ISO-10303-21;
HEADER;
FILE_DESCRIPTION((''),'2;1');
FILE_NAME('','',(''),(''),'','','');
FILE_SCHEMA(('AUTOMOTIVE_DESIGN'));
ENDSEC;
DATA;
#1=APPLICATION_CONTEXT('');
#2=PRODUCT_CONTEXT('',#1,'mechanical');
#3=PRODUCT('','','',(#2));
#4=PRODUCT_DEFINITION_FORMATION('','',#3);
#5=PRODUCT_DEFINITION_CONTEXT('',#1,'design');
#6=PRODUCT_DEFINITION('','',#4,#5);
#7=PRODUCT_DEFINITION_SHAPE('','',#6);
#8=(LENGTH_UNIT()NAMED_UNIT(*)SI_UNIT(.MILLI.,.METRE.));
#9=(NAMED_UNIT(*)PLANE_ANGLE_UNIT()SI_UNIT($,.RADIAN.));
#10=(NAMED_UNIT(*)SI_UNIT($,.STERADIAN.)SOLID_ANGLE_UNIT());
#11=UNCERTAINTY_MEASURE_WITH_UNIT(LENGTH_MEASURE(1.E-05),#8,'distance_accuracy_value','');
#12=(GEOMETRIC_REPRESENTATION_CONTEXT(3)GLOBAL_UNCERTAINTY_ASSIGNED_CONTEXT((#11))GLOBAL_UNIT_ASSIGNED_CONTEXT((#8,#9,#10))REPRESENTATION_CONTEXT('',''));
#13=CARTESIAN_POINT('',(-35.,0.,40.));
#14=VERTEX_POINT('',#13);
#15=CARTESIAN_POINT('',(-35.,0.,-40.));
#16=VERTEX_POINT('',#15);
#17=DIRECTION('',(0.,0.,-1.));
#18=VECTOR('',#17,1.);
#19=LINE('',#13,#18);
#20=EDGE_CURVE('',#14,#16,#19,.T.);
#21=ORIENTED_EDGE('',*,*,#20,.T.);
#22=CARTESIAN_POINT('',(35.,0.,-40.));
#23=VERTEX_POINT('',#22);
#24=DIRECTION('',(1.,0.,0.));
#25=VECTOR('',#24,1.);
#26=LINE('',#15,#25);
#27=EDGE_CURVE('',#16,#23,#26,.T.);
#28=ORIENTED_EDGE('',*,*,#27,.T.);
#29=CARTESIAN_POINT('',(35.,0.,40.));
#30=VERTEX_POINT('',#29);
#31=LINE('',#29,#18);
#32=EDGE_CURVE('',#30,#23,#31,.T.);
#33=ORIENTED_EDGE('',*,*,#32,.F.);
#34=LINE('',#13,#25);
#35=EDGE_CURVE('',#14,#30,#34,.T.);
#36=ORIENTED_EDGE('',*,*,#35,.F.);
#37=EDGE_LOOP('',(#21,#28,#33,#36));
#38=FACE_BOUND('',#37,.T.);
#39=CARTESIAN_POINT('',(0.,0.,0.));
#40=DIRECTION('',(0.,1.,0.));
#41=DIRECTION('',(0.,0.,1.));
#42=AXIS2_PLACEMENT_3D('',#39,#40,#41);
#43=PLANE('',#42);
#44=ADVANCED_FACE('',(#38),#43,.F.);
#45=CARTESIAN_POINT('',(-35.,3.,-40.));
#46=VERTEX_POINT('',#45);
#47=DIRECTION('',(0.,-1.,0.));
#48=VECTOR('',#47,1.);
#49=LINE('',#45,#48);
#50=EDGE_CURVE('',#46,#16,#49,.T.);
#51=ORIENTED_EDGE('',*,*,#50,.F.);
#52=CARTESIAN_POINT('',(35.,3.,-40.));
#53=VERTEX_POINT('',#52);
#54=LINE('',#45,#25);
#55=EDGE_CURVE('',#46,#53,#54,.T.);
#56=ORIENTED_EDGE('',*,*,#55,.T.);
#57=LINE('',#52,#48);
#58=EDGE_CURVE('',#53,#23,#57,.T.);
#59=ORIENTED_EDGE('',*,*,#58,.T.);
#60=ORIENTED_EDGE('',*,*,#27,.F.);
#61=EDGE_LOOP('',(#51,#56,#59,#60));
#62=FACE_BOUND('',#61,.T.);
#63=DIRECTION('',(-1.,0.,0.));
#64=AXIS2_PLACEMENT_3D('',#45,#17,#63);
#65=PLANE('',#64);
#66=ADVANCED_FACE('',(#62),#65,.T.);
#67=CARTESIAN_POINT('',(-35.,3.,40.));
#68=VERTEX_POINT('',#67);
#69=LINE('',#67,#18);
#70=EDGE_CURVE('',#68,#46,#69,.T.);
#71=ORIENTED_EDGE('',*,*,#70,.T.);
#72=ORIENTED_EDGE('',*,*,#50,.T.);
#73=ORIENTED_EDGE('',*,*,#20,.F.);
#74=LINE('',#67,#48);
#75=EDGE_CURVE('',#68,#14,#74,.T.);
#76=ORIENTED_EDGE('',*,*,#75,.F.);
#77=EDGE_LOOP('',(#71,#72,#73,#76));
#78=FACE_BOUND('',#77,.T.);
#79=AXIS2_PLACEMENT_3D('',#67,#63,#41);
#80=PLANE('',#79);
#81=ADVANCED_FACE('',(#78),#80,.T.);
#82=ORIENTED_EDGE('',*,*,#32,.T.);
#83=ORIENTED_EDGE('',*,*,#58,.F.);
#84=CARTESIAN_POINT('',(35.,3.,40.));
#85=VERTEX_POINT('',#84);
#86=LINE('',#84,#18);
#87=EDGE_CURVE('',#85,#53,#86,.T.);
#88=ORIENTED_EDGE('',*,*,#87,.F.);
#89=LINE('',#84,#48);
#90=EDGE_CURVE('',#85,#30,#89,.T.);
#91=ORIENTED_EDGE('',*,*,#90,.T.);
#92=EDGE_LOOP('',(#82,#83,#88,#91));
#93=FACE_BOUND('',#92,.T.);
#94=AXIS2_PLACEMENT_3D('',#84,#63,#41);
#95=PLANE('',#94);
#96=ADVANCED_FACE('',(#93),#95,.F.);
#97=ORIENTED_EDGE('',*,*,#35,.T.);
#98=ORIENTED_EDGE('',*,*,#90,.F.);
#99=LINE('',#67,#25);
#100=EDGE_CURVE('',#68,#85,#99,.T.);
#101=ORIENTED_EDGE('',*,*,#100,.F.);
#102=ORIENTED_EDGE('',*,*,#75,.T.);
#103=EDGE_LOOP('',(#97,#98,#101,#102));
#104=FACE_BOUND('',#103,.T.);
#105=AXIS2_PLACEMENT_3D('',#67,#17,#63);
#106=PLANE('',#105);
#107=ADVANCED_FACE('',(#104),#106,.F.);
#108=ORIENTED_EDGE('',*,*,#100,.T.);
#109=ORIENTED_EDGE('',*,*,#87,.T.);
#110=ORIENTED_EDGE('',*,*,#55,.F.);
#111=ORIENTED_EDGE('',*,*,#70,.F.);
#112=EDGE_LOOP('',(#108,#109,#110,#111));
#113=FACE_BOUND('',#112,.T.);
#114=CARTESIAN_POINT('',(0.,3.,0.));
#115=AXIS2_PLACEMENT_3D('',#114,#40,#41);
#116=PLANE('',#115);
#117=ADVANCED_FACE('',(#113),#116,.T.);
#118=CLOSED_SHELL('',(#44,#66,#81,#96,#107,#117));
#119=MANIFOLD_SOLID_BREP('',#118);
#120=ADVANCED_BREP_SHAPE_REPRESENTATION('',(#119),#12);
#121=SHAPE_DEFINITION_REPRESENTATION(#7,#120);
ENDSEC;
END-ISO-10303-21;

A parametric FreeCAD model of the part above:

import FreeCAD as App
import Part
import Sketcher
from FreeCAD import Vector

doc = App.newDocument("Part")
body = doc.addObject("PartDesign::Body", "Body")

sketch1 = body.newObject("Sketcher::SketchObject", "Sketch")
sketch1.AttachmentSupport = (doc.getObject("XZ_Plane"), [""])
sketch1.MapMode = "FlatFace"
sketch1.addGeometry(Part.LineSegment(Vector(-35, -40, 0), Vector(-35, 40, 0)), False)
sketch1.addGeometry(Part.LineSegment(Vector(-35, 40, 0), Vector(35, 40, 0)), False)
sketch1.addGeometry(Part.LineSegment(Vector(35, 40, 0), Vector(35, -40, 0)), False)
sketch1.addGeometry(Part.LineSegment(Vector(35, -40, 0), Vector(-35, -40, 0)), False)
sketch1.addConstraint(Sketcher.Constraint("Coincident", 0, 2, 1, 1))
sketch1.addConstraint(Sketcher.Constraint("Coincident", 1, 2, 2, 1))
sketch1.addConstraint(Sketcher.Constraint("Coincident", 2, 2, 3, 1))
sketch1.addConstraint(Sketcher.Constraint("Coincident", 3, 2, 0, 1))
sketch1.addConstraint(Sketcher.Constraint("Vertical", 0))
sketch1.addConstraint(Sketcher.Constraint("Horizontal", 1))
sketch1.addConstraint(Sketcher.Constraint("Vertical", 2))
sketch1.addConstraint(Sketcher.Constraint("Horizontal", 3))
sketch1.addConstraint(Sketcher.Constraint("Symmetric", 0, 2, 2, 2, -1, 1))
sketch1.addConstraint(Sketcher.Constraint("DistanceX", 1, 1, 1, 2, 70.0))
sketch1.addConstraint(Sketcher.Constraint("DistanceY", 0, 1, 0, 2, 80.0))
pad1 = body.newObject("PartDesign::Pad", "Pad")
pad1.Profile = sketch1
pad1.Length = 3
pad1.Reversed = True

doc.recompute()
